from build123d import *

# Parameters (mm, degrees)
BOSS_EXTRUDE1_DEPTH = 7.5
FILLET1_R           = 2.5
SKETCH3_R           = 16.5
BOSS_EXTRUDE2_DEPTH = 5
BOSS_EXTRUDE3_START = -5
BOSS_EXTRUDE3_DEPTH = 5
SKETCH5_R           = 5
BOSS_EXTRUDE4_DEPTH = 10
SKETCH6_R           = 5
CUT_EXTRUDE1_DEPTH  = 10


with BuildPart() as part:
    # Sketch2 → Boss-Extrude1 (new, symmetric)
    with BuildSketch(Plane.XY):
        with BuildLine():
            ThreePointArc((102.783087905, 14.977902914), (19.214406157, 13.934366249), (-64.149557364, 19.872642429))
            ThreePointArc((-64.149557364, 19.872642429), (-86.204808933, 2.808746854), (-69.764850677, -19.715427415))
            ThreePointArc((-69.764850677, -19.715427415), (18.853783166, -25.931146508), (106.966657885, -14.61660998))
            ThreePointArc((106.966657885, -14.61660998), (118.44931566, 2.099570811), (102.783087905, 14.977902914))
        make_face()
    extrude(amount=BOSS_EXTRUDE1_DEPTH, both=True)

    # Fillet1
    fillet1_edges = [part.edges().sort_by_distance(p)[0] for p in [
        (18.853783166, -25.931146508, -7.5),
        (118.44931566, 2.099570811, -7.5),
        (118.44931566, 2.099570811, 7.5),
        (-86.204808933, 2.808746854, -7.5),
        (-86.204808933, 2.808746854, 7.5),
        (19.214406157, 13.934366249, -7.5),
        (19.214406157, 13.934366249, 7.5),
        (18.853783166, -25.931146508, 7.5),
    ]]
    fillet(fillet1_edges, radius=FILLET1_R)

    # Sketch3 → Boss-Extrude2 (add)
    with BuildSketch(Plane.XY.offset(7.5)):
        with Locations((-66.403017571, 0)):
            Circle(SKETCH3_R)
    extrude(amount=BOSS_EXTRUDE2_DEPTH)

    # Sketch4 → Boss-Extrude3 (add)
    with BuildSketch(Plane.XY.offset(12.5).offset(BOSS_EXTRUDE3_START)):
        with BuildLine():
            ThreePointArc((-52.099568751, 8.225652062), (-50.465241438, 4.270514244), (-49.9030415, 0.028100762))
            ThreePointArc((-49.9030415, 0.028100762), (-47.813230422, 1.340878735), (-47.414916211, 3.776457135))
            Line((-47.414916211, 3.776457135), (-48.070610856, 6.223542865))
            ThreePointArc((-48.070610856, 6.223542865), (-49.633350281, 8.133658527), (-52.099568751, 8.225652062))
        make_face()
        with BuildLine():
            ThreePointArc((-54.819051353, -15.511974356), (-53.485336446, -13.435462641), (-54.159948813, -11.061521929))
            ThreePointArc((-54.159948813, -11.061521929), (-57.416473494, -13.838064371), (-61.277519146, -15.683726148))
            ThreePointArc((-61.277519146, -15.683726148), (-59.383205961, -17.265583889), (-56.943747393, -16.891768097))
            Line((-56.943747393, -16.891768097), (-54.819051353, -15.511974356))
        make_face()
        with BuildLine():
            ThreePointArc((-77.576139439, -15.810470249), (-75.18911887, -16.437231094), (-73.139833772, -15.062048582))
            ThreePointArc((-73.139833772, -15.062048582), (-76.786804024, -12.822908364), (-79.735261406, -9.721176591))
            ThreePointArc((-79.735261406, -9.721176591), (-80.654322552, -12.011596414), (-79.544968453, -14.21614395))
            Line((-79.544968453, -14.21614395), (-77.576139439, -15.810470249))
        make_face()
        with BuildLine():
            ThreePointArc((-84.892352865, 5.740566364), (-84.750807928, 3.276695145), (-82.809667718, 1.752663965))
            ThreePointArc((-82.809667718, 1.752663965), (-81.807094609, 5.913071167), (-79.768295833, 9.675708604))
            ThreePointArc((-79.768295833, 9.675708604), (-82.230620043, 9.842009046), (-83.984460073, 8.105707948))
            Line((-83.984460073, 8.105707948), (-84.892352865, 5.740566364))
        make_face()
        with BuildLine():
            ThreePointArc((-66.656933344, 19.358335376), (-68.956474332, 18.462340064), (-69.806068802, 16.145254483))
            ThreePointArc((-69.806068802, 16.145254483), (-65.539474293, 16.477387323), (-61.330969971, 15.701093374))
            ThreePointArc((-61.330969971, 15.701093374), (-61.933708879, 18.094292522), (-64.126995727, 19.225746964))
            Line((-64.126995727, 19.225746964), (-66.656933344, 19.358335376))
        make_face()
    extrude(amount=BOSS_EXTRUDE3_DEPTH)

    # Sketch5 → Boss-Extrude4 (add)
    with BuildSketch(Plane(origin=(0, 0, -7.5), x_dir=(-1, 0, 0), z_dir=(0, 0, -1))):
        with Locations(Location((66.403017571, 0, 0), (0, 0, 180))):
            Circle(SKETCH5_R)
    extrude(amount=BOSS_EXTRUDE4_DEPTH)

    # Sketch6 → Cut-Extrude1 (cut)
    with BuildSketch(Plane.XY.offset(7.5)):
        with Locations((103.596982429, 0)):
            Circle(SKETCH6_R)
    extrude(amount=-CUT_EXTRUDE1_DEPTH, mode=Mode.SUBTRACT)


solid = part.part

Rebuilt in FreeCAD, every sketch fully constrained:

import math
import FreeCAD as App
import Part
import Sketcher
from FreeCAD import Vector
Q = App.Units.Quantity


def edges_at(feature, points):
    """Names of the edges that pass closest to the given points."""
    edges = feature.Shape.Edges
    near = lambda p: min(range(len(edges)), key=lambda i: edges[i].distToShape(Part.Vertex(*p))[0])
    return sorted({f"Edge{near(p) + 1}" for p in points})

doc = App.newDocument("Part")
params = doc.addObject("Spreadsheet::Sheet", "Params")
for row, (alias, value) in enumerate([
    ("sketch1_radius", "1000 mm"),
    ("sketch1_radius2", "20 mm"),
    ("sketch1_radius3", "450 mm"),
    ("sketch1_radius4", "15 mm"),
    ("pad1_length", "15 mm"),
    ("fillet_radius", "2.5 mm"),
    ("sketch2_diameter", "33 mm"),
    ("pad2_length", "5 mm"),
    ("sketch3_radius", "3 mm"),
    ("sketch3_radius2", "3 mm"),
    ("sketch3_radius3", "3 mm"),
    ("sketch3_radius4", "3 mm"),
    ("sketch3_radius5", "3 mm"),
    ("pad3_length", "5 mm"),
    ("sketch4_diameter", "10 mm"),
    ("pad4_length", "10 mm"),
    ("sketch5_diameter", "10 mm"),
    ("pocket1_length", "10 mm"),
], start=1):
    params.set(f"A{row}", alias)
    params.set(f"B{row}", "=" + value)
    params.setAlias(f"B{row}", alias)

body = doc.addObject("PartDesign::Body", "Body")

# Sketch on XY plane
sketch1 = body.newObject("Sketcher::SketchObject", "Sketch")
sketch1.AttachmentSupport = (doc.getObject("XY_Plane"), [""])
sketch1.MapMode = "FlatFace"
sketch1.addGeometry([
    Part.ArcOfCircle(Part.Circle(Vector(49, 1014, 0), Vector(0, 0, 1), 1000), math.radians(-96.47), math.radians(-86.89)),
    Part.ArcOfCircle(Part.Circle(Vector(-66, 0, 0), Vector(0, 0, 1), 20), math.radians(84), math.radians(260)),
    Part.ArcOfCircle(Part.Circle(Vector(6, 424, 0), Vector(0, 0, 1), 450), math.radians(-100), math.radians(-77)),
    Part.ArcOfCircle(Part.Circle(Vector(104, 0, 0), Vector(0, 0, 1), 15), math.radians(-77), math.radians(93)),
], False)
sketch1.addConstraint([
    Sketcher.Constraint("Tangent", 0, 1, 1, 1),
    Sketcher.Constraint("Tangent", 1, 2, 2, 1),
    Sketcher.Constraint("Tangent", 2, 2, 3, 1),
    Sketcher.Constraint("Tangent", 3, 2, 0, 2),
    Sketcher.Constraint("PointOnObject", 1, 3, -1),
    Sketcher.Constraint("PointOnObject", 3, 3, -1),
    Sketcher.Constraint("Radius", 0, Q("1000 mm")),
    Sketcher.Constraint("Radius", 1, Q("20 mm")),
    Sketcher.Constraint("Radius", 2, Q("450 mm")),
    Sketcher.Constraint("Radius", 3, Q("15 mm")),
    Sketcher.Constraint("DistanceX", 1, 3, 3, 3, Q("170 mm")),
    Sketcher.Constraint("DistanceX", 1, 2, -1, 1, Q("69.764851 mm")),
])
sketch1.setExpression("Constraints[6]", "Params.sketch1_radius")
sketch1.setExpression("Constraints[7]", "Params.sketch1_radius2")
sketch1.setExpression("Constraints[8]", "Params.sketch1_radius3")
sketch1.setExpression("Constraints[9]", "Params.sketch1_radius4")
pad1 = body.newObject("PartDesign::Pad", "Pad")
pad1.Profile = sketch1
pad1.setExpression("Length", "Params.pad1_length")
pad1.Midplane = True
doc.recompute()

fillet = body.newObject("PartDesign::Fillet", "Fillet")
fillet.Base = (pad1, edges_at(pad1, [
    (18.854, -25.931, -7.5),
    (118.449, 2.1, -7.5),
    (118.449, 2.1, 7.5),
    (-86.205, 2.809, -7.5),
    (-86.205, 2.809, 7.5),
    (19.214, 13.934, -7.5),
    (19.214, 13.934, 7.5),
    (18.854, -25.931, 7.5),
]))
fillet.setExpression("Radius", "Params.fillet_radius")

# Sketch on XY plane
sketch2 = body.newObject("Sketcher::SketchObject", "Sketch001")
sketch2.AttachmentSupport = (doc.getObject("XY_Plane"), [""])
sketch2.MapMode = "FlatFace"
sketch2.AttachmentOffset = App.Placement(Vector(0, 0, 7.5), App.Rotation())
sketch2.addGeometry(Part.Circle(Vector(-66, 0, 0), Vector(0, 0, 1), 16), False)
sketch2.addConstraint([
    Sketcher.Constraint("PointOnObject", 0, 3, -1),
    Sketcher.Constraint("Diameter", 0, Q("33 mm")),
    Sketcher.Constraint("DistanceX", 0, 3, -1, 1, Q("66.403018 mm")),
])
sketch2.setExpression("Constraints[1]", "Params.sketch2_diameter")
pad2 = body.newObject("PartDesign::Pad", "Pad001")
pad2.Profile = sketch2
pad2.setExpression("Length", "Params.pad2_length")

# Sketch on XY plane
sketch3 = body.newObject("Sketcher::SketchObject", "Sketch002")
sketch3.AttachmentSupport = (doc.getObject("XY_Plane"), [""])
sketch3.MapMode = "FlatFace"
sketch3.AttachmentOffset = App.Placement(Vector(0, 0, 7.5), App.Rotation())
sketch3.addGeometry([
    Part.ArcOfCircle(Part.Circle(Vector(-66.403018, 0, 0), Vector(0, 0, 1), 16.5), math.radians(0.097579), math.radians(29.902421)),  # 0
    Part.ArcOfCircle(Part.Circle(Vector(-50.312694, 3, 0), Vector(0, 0, 1), 3), math.radians(-82.151699), math.radians(15)),  # 1
    Part.LineSegment(Vector(-47.414916, 3.776457, 0), Vector(-48.070611, 6.223543, 0)),  # 2
    Part.ArcOfCircle(Part.Circle(Vector(-50.968388, 5.447086, 0), Vector(0, 0, 1), 3), math.radians(15), math.radians(112.151699)),  # 3
    Part.ArcOfCircle(Part.Circle(Vector(-56.452968, -12.995963, 0), Vector(0, 0, 1), 3), math.radians(-57), math.radians(40.151699)),  # 4
    Part.ArcOfCircle(Part.Circle(Vector(-66.403018, 0, 0), Vector(0, 0, 1), 16.5), math.radians(-71.902421), math.radians(-42.097579)),  # 5
    Part.ArcOfCircle(Part.Circle(Vector(-58.577664, -14.375756, 0), Vector(0, 0, 1), 3), math.radians(-154.151699), math.radians(-57)),  # 6
    Part.LineSegment(Vector(-56.943747, -16.891768, 0), Vector(-54.819051, -15.511974, 0)),  # 7
    Part.ArcOfCircle(Part.Circle(Vector(-75.688178, -13.479032, 0), Vector(0, 0, 1), 3), math.radians(-129), math.radians(-31.848301)),  # 8
    Part.ArcOfCircle(Part.Circle(Vector(-66.403018, 0, 0), Vector(0, 0, 1), 16.5), math.radians(-143.902421), math.radians(-114.097579)),  # 9
    Part.ArcOfCircle(Part.Circle(Vector(-77.657007, -11.884706, 0), Vector(0, 0, 1), 3), math.radians(133.848301), math.radians(231)),  # 10
    Part.LineSegment(Vector(-79.544968, -14.216144, 0), Vector(-77.576139, -15.81047, 0)),  # 11
    Part.ArcOfCircle(Part.Circle(Vector(-82.091612, 4.665463, 0), Vector(0, 0, 1), 3), math.radians(159), math.radians(256.151699)),  # 12
    Part.ArcOfCircle(Part.Circle(Vector(-66.403018, 0, 0), Vector(0, 0, 1), 16.5), math.radians(144.097579), math.radians(173.902421)),  # 13
    Part.ArcOfCircle(Part.Circle(Vector(-81.183719, 7.030604, 0), Vector(0, 0, 1), 3), math.radians(61.848301), math.radians(159)),  # 14
    Part.LineSegment(Vector(-83.98446, 8.105708, 0), Vector(-84.892353, 5.740566, 0)),  # 15
    Part.ArcOfCircle(Part.Circle(Vector(-66.813941, 16.362447, 0), Vector(0, 0, 1), 3), math.radians(87), math.radians(184.151699)),  # 16
    Part.ArcOfCircle(Part.Circle(Vector(-66.403018, 0, 0), Vector(0, 0, 1), 16.5), math.radians(72.097579), math.radians(101.902421)),  # 17
    Part.ArcOfCircle(Part.Circle(Vector(-64.284004, 16.229858, 0), Vector(0, 0, 1), 3), math.radians(-10.151699), math.radians(87)),  # 18
    Part.LineSegment(Vector(-64.126996, 19.225747, 0), Vector(-66.656933, 19.358335, 0)),  # 19
], False)
sketch3.addConstraint([
    Sketcher.Constraint("Coincident", 0, 1, 1, 1),
    Sketcher.Constraint("Coincident", 1, 2, 2, 1),
    Sketcher.Constraint("Coincident", 2, 2, 3, 1),
    Sketcher.Constraint("Coincident", 3, 2, 0, 2),
    Sketcher.Constraint("Coincident", 4, 2, 5, 2),
    Sketcher.Constraint("Coincident", 5, 1, 6, 1),
    Sketcher.Constraint("Coincident", 6, 2, 7, 1),
    Sketcher.Constraint("Coincident", 7, 2, 4, 1),
    Sketcher.Constraint("Coincident", 8, 2, 9, 2),
    Sketcher.Constraint("Coincident", 9, 1, 10, 1),
    Sketcher.Constraint("Coincident", 10, 2, 11, 1),
    Sketcher.Constraint("Coincident", 11, 2, 8, 1),
    Sketcher.Constraint("Coincident", 12, 2, 13, 2),
    Sketcher.Constraint("Coincident", 13, 1, 14, 1),
    Sketcher.Constraint("Coincident", 14, 2, 15, 1),
    Sketcher.Constraint("Coincident", 15, 2, 12, 1),
    Sketcher.Constraint("Coincident", 16, 2, 17, 2),
    Sketcher.Constraint("Coincident", 17, 1, 18, 1),
    Sketcher.Constraint("Coincident", 18, 2, 19, 1),
    Sketcher.Constraint("Coincident", 19, 2, 16, 1),
    Sketcher.Constraint("Coincident", 5, 3, 0, 3),
    Sketcher.Constraint("Coincident", 9, 3, 0, 3),
    Sketcher.Constraint("Coincident", 13, 3, 0, 3),
    Sketcher.Constraint("Coincident", 17, 3, 0, 3),
    Sketcher.Constraint("PointOnObject", 0, 3, -1),
    Sketcher.Constraint("Radius", 1, Q("3 mm")),
    Sketcher.Constraint("Radius", 3, Q("3 mm")),
    Sketcher.Constraint("Radius", 4, Q("3 mm")),
    Sketcher.Constraint("Radius", 6, Q("3 mm")),
    Sketcher.Constraint("Radius", 8, Q("3 mm")),
    Sketcher.Constraint("Radius", 10, Q("3 mm")),
    Sketcher.Constraint("Radius", 12, Q("3 mm")),
    Sketcher.Constraint("Radius", 14, Q("3 mm")),
    Sketcher.Constraint("Radius", 16, Q("3 mm")),
    Sketcher.Constraint("Radius", 18, Q("3 mm")),
    Sketcher.Constraint("Radius", 0, Q("16.5 mm")),
    Sketcher.Constraint("Radius", 5, Q("16.5 mm")),
    Sketcher.Constraint("Radius", 9, Q("16.5 mm")),
    Sketcher.Constraint("Radius", 13, Q("16.5 mm")),
    Sketcher.Constraint("Radius", 17, Q("16.5 mm")),
    Sketcher.Constraint("DistanceY", -1, 1, 1, 3, Q("3 mm")),
    Sketcher.Constraint("DistanceY", 14, 2, 13, 1, Q("1.570001 mm")),
    Sketcher.Constraint("DistanceY", -1, 1, 0, 1, Q("0.028101 mm")),
    Sketcher.Constraint("DistanceX", 14, 3, 0, 3, Q("14.780701 mm")),
    Sketcher.Constraint("DistanceX", 13, 3, 1, 2, Q("18.988101 mm")),
    Sketcher.Constraint("DistanceX", 17, 3, 5, 1, Q("5.125498 mm")),
    Sketcher.Constraint("DistanceX", 6, 2, 4, 2, Q("2.783799 mm")),
    Sketcher.Constraint("DistanceY", 12, 2, 12, 3, Q("2.912799 mm")),
    Sketcher.Constraint("DistanceX", 12, 2, 10, 2, Q("3.264699 mm")),
    Sketcher.Constraint("DistanceX", 14, 2, 9, 1, Q("4.249199 mm")),
    Sketcher.Constraint("DistanceX", 16, 2, 17, 1, Q("8.475099 mm")),
    Sketcher.Constraint("DistanceX", 17, 1, 3, 2, Q("9.231401 mm")),
    Sketcher.Constraint("DistanceY", 16, 3, 18, 2, Q("2.8633 mm")),
    Sketcher.Constraint("Distance", 2, Q("2.53341 mm")),
    Sketcher.Constraint("Distance", 7, Q("2.53341 mm")),
    Sketcher.Constraint("Distance", 11, Q("2.53341 mm")),
    Sketcher.Constraint("Distance", 15, Q("2.53341 mm")),
    Sketcher.Constraint("Distance", 19, Q("2.53341 mm")),
    Sketcher.Constraint("DistanceX", 3, 3, -1, 1, Q("50.968388 mm")),
    Sketcher.Constraint("DistanceX", 4, 3, -1, 1, Q("56.452968 mm")),
    Sketcher.Constraint("DistanceX", 8, 3, -1, 1, Q("75.688178 mm")),
    Sketcher.Constraint("DistanceX", 12, 3, -1, 1, Q("82.091612 mm")),
    Sketcher.Constraint("DistanceX", 14, 3, -1, 1, Q("81.183719 mm")),
    Sketcher.Constraint("DistanceX", 16, 3, -1, 1, Q("66.813941 mm")),
    Sketcher.Constraint("DistanceY", -1, 1, 18, 3, Q("16.229858 mm")),
    Sketcher.Constraint("DistanceX", 4, 2, -1, 1, Q("54.159949 mm")),
    Sketcher.Constraint("DistanceY", 6, 2, -1, 1, Q("16.891768 mm")),
    Sketcher.Constraint("DistanceY", 8, 2, -1, 1, Q("15.062049 mm")),
    Sketcher.Constraint("DistanceX", 9, 1, -1, 1, Q("79.735261 mm")),
    Sketcher.Constraint("DistanceX", 11, 2, -1, 1, Q("77.576139 mm")),
    Sketcher.Constraint("DistanceY", 4, 3, 3, 3, Q("18.443048 mm")),
])
sketch3.setExpression("Constraints[25]", "Params.sketch3_radius")
sketch3.setExpression("Constraints[26]", "Params.sketch3_radius2")
sketch3.setExpression("Constraints[27]", "Params.sketch3_radius3")
sketch3.setExpression("Constraints[28]", "Params.sketch3_radius4")
sketch3.setExpression("Constraints[29]", "Params.sketch3_radius5")
pad3 = body.newObject("PartDesign::Pad", "Pad002")
pad3.Profile = sketch3
pad3.setExpression("Length", "Params.pad3_length")

# Sketch on XY plane
sketch4 = body.newObject("Sketcher::SketchObject", "Sketch003")
sketch4.AttachmentSupport = (doc.getObject("XY_Plane"), [""])
sketch4.MapMode = "FlatFace"
sketch4.AttachmentOffset = App.Placement(Vector(0, 0, -7.5), App.Rotation())
sketch4.addGeometry(Part.Circle(Vector(-66, 0, 0), Vector(0, 0, 1), 5), False)
sketch4.addConstraint([
    Sketcher.Constraint("PointOnObject", 0, 3, -1),
    Sketcher.Constraint("Diameter", 0, Q("10 mm")),
    Sketcher.Constraint("DistanceX", 0, 3, -1, 1, Q("66.403018 mm")),
])
sketch4.setExpression("Constraints[1]", "Params.sketch4_diameter")
pad4 = body.newObject("PartDesign::Pad", "Pad003")
pad4.Profile = sketch4
pad4.setExpression("Length", "Params.pad4_length")
pad4.Reversed = True

# Sketch on XY plane
sketch5 = body.newObject("Sketcher::SketchObject", "Sketch004")
sketch5.AttachmentSupport = (doc.getObject("XY_Plane"), [""])
sketch5.MapMode = "FlatFace"
sketch5.AttachmentOffset = App.Placement(Vector(0, 0, 7.5), App.Rotation())
sketch5.addGeometry(Part.Circle(Vector(104, 0, 0), Vector(0, 0, 1), 5), False)
sketch5.addConstraint([
    Sketcher.Constraint("PointOnObject", 0, 3, -1),
    Sketcher.Constraint("Diameter", 0, Q("10 mm")),
    Sketcher.Constraint("DistanceX", -1, 1, 0, 3, Q("103.596982 mm")),
])
sketch5.setExpression("Constraints[1]", "Params.sketch5_diameter")
pocket1 = body.newObject("PartDesign::Pocket", "Pocket")
pocket1.Profile = sketch5
pocket1.setExpression("Length", "Params.pocket1_length")

doc.recompute()
